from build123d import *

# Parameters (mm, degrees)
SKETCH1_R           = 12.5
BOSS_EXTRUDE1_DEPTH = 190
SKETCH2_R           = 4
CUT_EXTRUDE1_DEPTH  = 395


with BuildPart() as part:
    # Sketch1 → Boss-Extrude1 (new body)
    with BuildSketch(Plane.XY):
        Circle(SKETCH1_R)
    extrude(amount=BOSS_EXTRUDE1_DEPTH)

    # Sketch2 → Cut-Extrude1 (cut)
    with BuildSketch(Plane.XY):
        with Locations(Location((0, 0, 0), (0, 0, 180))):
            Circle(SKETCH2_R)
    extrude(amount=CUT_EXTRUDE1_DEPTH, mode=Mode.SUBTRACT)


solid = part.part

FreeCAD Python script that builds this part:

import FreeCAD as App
import Part
import Sketcher
from FreeCAD import Vector

doc = App.newDocument("Part")
body = doc.addObject("PartDesign::Body", "Body")

# Sketch on XY plane
sketch1 = doc.addObject("Sketcher::SketchObject", "Sketch")
body.addObject(sketch1)
sketch1.AttachmentSupport = (doc.XY_Plane, [""])
sketch1.MapMode = "FlatFace"
sketch1.addGeometry(Part.Circle(Vector(0, 0, 0), Vector(0, 0, 1), 12.5), False)
sketch1.addConstraint([
    Sketcher.Constraint("Coincident", 0, 3, -1, 1),
    Sketcher.Constraint("Diameter", 0, 25.0),
])
pad1 = doc.addObject("PartDesign::Pad", "Pad")
body.addObject(pad1)
pad1.Profile = sketch1
pad1.Length = 190

# Sketch on XY plane
sketch2 = doc.addObject("Sketcher::SketchObject", "Sketch001")
body.addObject(sketch2)
sketch2.AttachmentSupport = (doc.XY_Plane, [""])
sketch2.MapMode = "FlatFace"
sketch2.addGeometry(Part.Circle(Vector(0, 0, 0), Vector(0, 0, 1), 4), False)
sketch2.addConstraint([
    Sketcher.Constraint("Coincident", 0, 3, -1, 1),
    Sketcher.Constraint("Diameter", 0, 8.0),
])
pocket1 = doc.addObject("PartDesign::Pocket", "Pocket")
body.addObject(pocket1)
pocket1.Profile = sketch2
pocket1.Length = 395
pocket1.Reversed = True

doc.recompute()
